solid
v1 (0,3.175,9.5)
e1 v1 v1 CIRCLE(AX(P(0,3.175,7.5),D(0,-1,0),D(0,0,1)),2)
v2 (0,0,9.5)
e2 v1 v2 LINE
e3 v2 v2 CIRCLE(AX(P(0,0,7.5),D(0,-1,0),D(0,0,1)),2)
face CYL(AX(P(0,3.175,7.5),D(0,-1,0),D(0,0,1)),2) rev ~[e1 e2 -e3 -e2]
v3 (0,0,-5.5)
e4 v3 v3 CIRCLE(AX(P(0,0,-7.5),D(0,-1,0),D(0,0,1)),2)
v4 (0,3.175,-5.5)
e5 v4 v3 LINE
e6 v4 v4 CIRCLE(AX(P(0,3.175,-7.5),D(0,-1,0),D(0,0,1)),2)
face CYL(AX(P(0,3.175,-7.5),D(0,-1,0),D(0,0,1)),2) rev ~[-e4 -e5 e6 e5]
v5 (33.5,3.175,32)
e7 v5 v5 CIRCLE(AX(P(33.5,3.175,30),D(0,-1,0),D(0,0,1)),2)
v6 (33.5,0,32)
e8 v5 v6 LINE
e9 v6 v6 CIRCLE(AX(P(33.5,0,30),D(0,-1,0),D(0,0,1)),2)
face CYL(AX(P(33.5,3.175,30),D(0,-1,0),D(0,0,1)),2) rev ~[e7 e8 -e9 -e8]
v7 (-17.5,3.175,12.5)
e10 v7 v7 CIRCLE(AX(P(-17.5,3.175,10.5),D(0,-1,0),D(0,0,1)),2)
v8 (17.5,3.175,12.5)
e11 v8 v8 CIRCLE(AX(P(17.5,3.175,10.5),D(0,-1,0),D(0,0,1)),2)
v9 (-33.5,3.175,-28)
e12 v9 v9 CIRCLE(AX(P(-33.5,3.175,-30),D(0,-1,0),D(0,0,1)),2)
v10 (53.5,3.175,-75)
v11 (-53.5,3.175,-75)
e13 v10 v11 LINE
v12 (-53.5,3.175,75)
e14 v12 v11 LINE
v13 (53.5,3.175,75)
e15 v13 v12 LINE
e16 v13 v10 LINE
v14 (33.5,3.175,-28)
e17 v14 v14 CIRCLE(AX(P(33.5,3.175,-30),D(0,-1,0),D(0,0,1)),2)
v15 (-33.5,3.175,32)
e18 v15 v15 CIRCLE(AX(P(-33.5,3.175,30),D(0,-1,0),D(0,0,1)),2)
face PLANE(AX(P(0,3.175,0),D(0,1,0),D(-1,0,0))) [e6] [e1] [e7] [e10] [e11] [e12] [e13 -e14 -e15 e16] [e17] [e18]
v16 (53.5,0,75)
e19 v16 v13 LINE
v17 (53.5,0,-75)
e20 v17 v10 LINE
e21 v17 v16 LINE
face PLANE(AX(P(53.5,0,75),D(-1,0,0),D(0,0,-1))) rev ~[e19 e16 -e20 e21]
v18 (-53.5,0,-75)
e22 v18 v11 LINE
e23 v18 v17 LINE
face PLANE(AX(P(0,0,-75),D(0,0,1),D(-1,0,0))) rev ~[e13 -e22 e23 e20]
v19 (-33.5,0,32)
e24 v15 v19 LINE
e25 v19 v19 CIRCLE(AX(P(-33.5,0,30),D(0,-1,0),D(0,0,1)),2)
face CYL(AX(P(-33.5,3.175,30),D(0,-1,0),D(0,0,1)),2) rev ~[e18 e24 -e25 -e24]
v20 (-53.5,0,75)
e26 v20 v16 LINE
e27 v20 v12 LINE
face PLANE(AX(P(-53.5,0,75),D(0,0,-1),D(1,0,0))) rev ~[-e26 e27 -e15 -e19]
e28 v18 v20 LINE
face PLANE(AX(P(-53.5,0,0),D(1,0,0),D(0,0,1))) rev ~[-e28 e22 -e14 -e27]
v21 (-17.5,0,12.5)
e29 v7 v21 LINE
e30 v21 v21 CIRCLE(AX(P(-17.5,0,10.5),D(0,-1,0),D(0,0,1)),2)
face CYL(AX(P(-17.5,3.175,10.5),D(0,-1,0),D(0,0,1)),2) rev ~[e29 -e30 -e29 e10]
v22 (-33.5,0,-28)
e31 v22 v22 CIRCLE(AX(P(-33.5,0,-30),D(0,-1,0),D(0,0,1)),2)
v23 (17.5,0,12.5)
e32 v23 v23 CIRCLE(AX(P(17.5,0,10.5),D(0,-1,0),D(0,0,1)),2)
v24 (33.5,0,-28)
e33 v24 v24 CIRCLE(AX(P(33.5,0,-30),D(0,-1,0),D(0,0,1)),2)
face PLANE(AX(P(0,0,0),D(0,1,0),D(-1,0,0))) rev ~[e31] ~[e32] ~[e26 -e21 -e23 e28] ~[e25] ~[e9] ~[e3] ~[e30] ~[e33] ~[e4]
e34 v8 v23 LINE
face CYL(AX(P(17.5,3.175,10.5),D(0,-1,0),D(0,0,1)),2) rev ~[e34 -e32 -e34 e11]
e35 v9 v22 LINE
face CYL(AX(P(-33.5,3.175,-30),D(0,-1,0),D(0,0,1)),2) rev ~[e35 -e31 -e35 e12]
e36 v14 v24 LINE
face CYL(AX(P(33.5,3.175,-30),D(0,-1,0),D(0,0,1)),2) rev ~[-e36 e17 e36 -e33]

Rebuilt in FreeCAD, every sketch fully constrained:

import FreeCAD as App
import Part
import Sketcher
from FreeCAD import Vector
Q = App.Units.Quantity

doc = App.newDocument("Part")
body = doc.addObject("PartDesign::Body", "Body")

# Sketch on XZ plane
sketch1 = body.newObject("Sketcher::SketchObject", "Sketch")
sketch1.AttachmentSupport = (doc.getObject("XZ_Plane"), [""])
sketch1.MapMode = "FlatFace"
sketch1.addGeometry(Part.LineSegment(Vector(-53.5, 75, 0), Vector(53.5, 75, 0)), False)
sketch1.addGeometry(Part.LineSegment(Vector(53.5, 75, 0), Vector(53.5, -75, 0)), False)
sketch1.addGeometry(Part.LineSegment(Vector(53.5, -75, 0), Vector(-53.5, -75, 0)), False)
sketch1.addGeometry(Part.LineSegment(Vector(-53.5, -75, 0), Vector(-53.5, 75, 0)), False)
sketch1.addConstraint(Sketcher.Constraint("Coincident", 0, 2, 1, 1))
sketch1.addConstraint(Sketcher.Constraint("Coincident", 1, 2, 2, 1))
sketch1.addConstraint(Sketcher.Constraint("Coincident", 2, 2, 3, 1))
sketch1.addConstraint(Sketcher.Constraint("Coincident", 3, 2, 0, 1))
sketch1.addConstraint(Sketcher.Constraint("Horizontal", 0))
sketch1.addConstraint(Sketcher.Constraint("Vertical", 1))
sketch1.addConstraint(Sketcher.Constraint("Horizontal", 2))
sketch1.addConstraint(Sketcher.Constraint("Vertical", 3))
sketch1.addConstraint(Sketcher.Constraint("Symmetric", 0, 2, 2, 2, -1, 1))
sketch1.addConstraint(Sketcher.Constraint("DistanceX", 0, 1, 0, 2, Q("107 mm")))
sketch1.addConstraint(Sketcher.Constraint("DistanceY", 1, 2, 1, 1, Q("150 mm")))
pad1 = body.newObject("PartDesign::Pad", "Pad")
pad1.Profile = sketch1
pad1.Length = 3.175
pad1.Reversed = True

# Sketch on XZ plane
sketch2 = body.newObject("Sketcher::SketchObject", "Sketch001")
sketch2.AttachmentSupport = (doc.getObject("XZ_Plane"), [""])
sketch2.MapMode = "FlatFace"
sketch2.AttachmentOffset = App.Placement(Vector(0, 0, -3.175), App.Rotation())
sketch2.addGeometry(Part.Circle(Vector(-17.5, 10.5, 0), Vector(0, 0, 1), 2), False)
sketch2.addGeometry(Part.Circle(Vector(17.5, 10.5, 0), Vector(0, 0, 1), 2), False)
sketch2.addGeometry(Part.Circle(Vector(-33.5, 30, 0), Vector(0, 0, 1), 2), False)
sketch2.addGeometry(Part.Circle(Vector(-33.5, -30, 0), Vector(0, 0, 1), 2), False)
sketch2.addGeometry(Part.Circle(Vector(33.5, -30, 0), Vector(0, 0, 1), 2), False)
sketch2.addGeometry(Part.Circle(Vector(33.5, 30, 0), Vector(0, 0, 1), 2), False)
sketch2.addConstraint(Sketcher.Constraint("Equal", 0, 1))
sketch2.addConstraint(Sketcher.Constraint("Equal", 1, 2))
sketch2.addConstraint(Sketcher.Constraint("Equal", 2, 3))
sketch2.addConstraint(Sketcher.Constraint("Equal", 3, 4))
sketch2.addConstraint(Sketcher.Constraint("Equal", 4, 5))
sketch2.addConstraint(Sketcher.Constraint("Symmetric", 2, 3, 4, 3, -1, 1))
sketch2.addConstraint(Sketcher.Constraint("Symmetric", 3, 3, 5, 3, -1, 1))
sketch2.addConstraint(Sketcher.Constraint("Symmetric", 0, 3, 1, 3, -2))
sketch2.addConstraint(Sketcher.Constraint("Symmetric", 3, 3, 4, 3, -2))
sketch2.addConstraint(Sketcher.Constraint("Diameter", 0, Q("4 mm")))
sketch2.addConstraint(Sketcher.Constraint("DistanceY", -1, 1, 2, 3, Q("30 mm")))
sketch2.addConstraint(Sketcher.Constraint("DistanceX", 0, 3, 1, 3, Q("35 mm")))
sketch2.addConstraint(Sketcher.Constraint("DistanceX", 2, 3, 0, 3, Q("16 mm")))
sketch2.addConstraint(Sketcher.Constraint("DistanceY", -1, 1, 0, 3, Q("10.5 mm")))
doc.recompute()
hole = body.newObject("PartDesign::Hole", "Hole")
hole.Profile = sketch2
hole.ThreadType = "None"
hole.Diameter = 4
hole.DepthType = "ThroughAll"
hole.Reversed = True

# Sketch on XZ plane
sketch3 = body.newObject("Sketcher::SketchObject", "Sketch002")
sketch3.AttachmentSupport = (doc.getObject("XZ_Plane"), [""])
sketch3.MapMode = "FlatFace"
sketch3.AttachmentOffset = App.Placement(Vector(0, 0, -3.175), App.Rotation())
sketch3.addGeometry(Part.Circle(Vector(0, 7.5, 0), Vector(0, 0, 1), 2), False)
sketch3.addGeometry(Part.Circle(Vector(0, -7.5, 0), Vector(0, 0, 1), 2), False)
sketch3.addConstraint(Sketcher.Constraint("Equal", 0, 1))
sketch3.addConstraint(Sketcher.Constraint("Symmetric", 0, 3, 1, 3, -1, 1))
sketch3.addConstraint(Sketcher.Constraint("PointOnObject", 0, 3, -2))
sketch3.addConstraint(Sketcher.Constraint("Diameter", 0, Q("4 mm")))
sketch3.addConstraint(Sketcher.Constraint("DistanceY", 1, 3, 0, 3, Q("15 mm")))
doc.recompute()
hole2 = body.newObject("PartDesign::Hole", "Hole001")
hole2.Profile = sketch3
hole2.ThreadType = "None"
hole2.Diameter = 4
hole2.DepthType = "ThroughAll"
hole2.Reversed = True

doc.recompute()
